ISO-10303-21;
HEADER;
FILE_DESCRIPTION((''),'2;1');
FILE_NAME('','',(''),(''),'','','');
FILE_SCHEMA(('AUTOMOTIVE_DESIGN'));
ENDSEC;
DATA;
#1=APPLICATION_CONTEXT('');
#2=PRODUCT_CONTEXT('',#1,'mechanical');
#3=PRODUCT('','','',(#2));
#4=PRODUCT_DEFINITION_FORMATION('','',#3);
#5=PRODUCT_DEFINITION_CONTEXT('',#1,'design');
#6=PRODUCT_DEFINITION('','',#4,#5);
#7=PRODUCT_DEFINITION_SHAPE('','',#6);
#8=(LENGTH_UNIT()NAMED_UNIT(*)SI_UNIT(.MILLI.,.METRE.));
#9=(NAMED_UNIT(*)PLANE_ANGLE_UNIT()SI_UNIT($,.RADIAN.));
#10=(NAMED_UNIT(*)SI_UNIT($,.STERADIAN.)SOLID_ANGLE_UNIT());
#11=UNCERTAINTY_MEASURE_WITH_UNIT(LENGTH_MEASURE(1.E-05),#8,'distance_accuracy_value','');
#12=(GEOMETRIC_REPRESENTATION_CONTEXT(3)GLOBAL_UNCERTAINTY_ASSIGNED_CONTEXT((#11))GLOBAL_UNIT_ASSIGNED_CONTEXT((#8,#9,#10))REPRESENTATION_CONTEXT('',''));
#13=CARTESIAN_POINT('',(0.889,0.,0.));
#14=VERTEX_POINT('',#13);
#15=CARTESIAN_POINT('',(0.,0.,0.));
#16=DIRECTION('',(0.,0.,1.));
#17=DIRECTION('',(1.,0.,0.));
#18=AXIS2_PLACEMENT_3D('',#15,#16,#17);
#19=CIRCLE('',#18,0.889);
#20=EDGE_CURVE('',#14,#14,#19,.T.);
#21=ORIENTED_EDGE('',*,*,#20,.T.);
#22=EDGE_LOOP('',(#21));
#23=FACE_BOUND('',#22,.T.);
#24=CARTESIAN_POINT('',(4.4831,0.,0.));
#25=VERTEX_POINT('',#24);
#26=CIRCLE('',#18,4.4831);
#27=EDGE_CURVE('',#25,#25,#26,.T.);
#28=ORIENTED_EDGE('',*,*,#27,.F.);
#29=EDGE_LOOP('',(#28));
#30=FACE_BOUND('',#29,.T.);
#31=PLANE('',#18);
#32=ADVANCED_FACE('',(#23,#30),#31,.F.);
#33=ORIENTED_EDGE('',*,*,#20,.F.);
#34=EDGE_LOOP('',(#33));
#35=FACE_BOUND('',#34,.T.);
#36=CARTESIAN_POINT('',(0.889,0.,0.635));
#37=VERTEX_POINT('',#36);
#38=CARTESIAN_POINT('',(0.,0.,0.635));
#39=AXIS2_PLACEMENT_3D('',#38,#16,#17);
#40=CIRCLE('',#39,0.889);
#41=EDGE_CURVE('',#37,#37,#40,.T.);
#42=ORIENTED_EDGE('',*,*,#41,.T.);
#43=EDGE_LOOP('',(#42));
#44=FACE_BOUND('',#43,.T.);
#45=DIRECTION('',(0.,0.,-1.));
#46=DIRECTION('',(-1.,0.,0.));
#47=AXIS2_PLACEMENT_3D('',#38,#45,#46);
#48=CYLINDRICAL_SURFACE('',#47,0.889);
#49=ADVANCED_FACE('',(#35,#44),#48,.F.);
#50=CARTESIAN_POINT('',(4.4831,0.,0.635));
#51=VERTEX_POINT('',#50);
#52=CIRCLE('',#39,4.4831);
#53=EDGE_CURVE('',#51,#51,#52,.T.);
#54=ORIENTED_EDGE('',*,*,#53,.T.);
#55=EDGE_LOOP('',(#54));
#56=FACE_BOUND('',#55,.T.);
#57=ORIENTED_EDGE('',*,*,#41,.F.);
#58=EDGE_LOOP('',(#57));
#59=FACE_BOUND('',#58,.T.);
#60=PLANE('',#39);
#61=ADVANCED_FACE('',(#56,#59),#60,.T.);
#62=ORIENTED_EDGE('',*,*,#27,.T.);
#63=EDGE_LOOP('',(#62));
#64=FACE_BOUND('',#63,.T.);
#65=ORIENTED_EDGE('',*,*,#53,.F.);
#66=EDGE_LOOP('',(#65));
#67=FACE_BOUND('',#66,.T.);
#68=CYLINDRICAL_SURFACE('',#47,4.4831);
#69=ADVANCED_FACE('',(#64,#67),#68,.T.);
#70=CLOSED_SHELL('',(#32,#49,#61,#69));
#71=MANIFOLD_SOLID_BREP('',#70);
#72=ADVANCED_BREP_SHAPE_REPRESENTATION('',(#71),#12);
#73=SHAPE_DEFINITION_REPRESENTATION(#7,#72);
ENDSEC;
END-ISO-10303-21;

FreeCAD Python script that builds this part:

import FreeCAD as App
import Part
import Sketcher

V = App.Vector
Q = App.Units.Quantity

doc = App.newDocument("Part")
body = doc.addObject("PartDesign::Body", "Body")

sketch1 = body.newObject("Sketcher::SketchObject", "Sketch")
sketch1.AttachmentSupport = (doc.getObject("XY_Plane"), [""])
sketch1.MapMode = "FlatFace"
sketch1.addGeometry([
    Part.Circle(V(0, 0, 0), V(0, 0, 1), 4.4831),
    Part.Circle(V(0, 0, 0), V(0, 0, 1), 0.889),
], False)
sketch1.addConstraint([
    Sketcher.Constraint("Coincident", 0, 3, -1, 1),
    Sketcher.Constraint("Coincident", 1, 3, -1, 1),
    Sketcher.Constraint("Diameter", 1, Q("0.07 in")),
    Sketcher.Constraint("Diameter", 0, Q("0.353 in")),
])
pad1 = body.newObject("PartDesign::Pad", "Pad")
pad1.Profile = sketch1
pad1.Length = Q("0.025 in")

doc.recompute()
